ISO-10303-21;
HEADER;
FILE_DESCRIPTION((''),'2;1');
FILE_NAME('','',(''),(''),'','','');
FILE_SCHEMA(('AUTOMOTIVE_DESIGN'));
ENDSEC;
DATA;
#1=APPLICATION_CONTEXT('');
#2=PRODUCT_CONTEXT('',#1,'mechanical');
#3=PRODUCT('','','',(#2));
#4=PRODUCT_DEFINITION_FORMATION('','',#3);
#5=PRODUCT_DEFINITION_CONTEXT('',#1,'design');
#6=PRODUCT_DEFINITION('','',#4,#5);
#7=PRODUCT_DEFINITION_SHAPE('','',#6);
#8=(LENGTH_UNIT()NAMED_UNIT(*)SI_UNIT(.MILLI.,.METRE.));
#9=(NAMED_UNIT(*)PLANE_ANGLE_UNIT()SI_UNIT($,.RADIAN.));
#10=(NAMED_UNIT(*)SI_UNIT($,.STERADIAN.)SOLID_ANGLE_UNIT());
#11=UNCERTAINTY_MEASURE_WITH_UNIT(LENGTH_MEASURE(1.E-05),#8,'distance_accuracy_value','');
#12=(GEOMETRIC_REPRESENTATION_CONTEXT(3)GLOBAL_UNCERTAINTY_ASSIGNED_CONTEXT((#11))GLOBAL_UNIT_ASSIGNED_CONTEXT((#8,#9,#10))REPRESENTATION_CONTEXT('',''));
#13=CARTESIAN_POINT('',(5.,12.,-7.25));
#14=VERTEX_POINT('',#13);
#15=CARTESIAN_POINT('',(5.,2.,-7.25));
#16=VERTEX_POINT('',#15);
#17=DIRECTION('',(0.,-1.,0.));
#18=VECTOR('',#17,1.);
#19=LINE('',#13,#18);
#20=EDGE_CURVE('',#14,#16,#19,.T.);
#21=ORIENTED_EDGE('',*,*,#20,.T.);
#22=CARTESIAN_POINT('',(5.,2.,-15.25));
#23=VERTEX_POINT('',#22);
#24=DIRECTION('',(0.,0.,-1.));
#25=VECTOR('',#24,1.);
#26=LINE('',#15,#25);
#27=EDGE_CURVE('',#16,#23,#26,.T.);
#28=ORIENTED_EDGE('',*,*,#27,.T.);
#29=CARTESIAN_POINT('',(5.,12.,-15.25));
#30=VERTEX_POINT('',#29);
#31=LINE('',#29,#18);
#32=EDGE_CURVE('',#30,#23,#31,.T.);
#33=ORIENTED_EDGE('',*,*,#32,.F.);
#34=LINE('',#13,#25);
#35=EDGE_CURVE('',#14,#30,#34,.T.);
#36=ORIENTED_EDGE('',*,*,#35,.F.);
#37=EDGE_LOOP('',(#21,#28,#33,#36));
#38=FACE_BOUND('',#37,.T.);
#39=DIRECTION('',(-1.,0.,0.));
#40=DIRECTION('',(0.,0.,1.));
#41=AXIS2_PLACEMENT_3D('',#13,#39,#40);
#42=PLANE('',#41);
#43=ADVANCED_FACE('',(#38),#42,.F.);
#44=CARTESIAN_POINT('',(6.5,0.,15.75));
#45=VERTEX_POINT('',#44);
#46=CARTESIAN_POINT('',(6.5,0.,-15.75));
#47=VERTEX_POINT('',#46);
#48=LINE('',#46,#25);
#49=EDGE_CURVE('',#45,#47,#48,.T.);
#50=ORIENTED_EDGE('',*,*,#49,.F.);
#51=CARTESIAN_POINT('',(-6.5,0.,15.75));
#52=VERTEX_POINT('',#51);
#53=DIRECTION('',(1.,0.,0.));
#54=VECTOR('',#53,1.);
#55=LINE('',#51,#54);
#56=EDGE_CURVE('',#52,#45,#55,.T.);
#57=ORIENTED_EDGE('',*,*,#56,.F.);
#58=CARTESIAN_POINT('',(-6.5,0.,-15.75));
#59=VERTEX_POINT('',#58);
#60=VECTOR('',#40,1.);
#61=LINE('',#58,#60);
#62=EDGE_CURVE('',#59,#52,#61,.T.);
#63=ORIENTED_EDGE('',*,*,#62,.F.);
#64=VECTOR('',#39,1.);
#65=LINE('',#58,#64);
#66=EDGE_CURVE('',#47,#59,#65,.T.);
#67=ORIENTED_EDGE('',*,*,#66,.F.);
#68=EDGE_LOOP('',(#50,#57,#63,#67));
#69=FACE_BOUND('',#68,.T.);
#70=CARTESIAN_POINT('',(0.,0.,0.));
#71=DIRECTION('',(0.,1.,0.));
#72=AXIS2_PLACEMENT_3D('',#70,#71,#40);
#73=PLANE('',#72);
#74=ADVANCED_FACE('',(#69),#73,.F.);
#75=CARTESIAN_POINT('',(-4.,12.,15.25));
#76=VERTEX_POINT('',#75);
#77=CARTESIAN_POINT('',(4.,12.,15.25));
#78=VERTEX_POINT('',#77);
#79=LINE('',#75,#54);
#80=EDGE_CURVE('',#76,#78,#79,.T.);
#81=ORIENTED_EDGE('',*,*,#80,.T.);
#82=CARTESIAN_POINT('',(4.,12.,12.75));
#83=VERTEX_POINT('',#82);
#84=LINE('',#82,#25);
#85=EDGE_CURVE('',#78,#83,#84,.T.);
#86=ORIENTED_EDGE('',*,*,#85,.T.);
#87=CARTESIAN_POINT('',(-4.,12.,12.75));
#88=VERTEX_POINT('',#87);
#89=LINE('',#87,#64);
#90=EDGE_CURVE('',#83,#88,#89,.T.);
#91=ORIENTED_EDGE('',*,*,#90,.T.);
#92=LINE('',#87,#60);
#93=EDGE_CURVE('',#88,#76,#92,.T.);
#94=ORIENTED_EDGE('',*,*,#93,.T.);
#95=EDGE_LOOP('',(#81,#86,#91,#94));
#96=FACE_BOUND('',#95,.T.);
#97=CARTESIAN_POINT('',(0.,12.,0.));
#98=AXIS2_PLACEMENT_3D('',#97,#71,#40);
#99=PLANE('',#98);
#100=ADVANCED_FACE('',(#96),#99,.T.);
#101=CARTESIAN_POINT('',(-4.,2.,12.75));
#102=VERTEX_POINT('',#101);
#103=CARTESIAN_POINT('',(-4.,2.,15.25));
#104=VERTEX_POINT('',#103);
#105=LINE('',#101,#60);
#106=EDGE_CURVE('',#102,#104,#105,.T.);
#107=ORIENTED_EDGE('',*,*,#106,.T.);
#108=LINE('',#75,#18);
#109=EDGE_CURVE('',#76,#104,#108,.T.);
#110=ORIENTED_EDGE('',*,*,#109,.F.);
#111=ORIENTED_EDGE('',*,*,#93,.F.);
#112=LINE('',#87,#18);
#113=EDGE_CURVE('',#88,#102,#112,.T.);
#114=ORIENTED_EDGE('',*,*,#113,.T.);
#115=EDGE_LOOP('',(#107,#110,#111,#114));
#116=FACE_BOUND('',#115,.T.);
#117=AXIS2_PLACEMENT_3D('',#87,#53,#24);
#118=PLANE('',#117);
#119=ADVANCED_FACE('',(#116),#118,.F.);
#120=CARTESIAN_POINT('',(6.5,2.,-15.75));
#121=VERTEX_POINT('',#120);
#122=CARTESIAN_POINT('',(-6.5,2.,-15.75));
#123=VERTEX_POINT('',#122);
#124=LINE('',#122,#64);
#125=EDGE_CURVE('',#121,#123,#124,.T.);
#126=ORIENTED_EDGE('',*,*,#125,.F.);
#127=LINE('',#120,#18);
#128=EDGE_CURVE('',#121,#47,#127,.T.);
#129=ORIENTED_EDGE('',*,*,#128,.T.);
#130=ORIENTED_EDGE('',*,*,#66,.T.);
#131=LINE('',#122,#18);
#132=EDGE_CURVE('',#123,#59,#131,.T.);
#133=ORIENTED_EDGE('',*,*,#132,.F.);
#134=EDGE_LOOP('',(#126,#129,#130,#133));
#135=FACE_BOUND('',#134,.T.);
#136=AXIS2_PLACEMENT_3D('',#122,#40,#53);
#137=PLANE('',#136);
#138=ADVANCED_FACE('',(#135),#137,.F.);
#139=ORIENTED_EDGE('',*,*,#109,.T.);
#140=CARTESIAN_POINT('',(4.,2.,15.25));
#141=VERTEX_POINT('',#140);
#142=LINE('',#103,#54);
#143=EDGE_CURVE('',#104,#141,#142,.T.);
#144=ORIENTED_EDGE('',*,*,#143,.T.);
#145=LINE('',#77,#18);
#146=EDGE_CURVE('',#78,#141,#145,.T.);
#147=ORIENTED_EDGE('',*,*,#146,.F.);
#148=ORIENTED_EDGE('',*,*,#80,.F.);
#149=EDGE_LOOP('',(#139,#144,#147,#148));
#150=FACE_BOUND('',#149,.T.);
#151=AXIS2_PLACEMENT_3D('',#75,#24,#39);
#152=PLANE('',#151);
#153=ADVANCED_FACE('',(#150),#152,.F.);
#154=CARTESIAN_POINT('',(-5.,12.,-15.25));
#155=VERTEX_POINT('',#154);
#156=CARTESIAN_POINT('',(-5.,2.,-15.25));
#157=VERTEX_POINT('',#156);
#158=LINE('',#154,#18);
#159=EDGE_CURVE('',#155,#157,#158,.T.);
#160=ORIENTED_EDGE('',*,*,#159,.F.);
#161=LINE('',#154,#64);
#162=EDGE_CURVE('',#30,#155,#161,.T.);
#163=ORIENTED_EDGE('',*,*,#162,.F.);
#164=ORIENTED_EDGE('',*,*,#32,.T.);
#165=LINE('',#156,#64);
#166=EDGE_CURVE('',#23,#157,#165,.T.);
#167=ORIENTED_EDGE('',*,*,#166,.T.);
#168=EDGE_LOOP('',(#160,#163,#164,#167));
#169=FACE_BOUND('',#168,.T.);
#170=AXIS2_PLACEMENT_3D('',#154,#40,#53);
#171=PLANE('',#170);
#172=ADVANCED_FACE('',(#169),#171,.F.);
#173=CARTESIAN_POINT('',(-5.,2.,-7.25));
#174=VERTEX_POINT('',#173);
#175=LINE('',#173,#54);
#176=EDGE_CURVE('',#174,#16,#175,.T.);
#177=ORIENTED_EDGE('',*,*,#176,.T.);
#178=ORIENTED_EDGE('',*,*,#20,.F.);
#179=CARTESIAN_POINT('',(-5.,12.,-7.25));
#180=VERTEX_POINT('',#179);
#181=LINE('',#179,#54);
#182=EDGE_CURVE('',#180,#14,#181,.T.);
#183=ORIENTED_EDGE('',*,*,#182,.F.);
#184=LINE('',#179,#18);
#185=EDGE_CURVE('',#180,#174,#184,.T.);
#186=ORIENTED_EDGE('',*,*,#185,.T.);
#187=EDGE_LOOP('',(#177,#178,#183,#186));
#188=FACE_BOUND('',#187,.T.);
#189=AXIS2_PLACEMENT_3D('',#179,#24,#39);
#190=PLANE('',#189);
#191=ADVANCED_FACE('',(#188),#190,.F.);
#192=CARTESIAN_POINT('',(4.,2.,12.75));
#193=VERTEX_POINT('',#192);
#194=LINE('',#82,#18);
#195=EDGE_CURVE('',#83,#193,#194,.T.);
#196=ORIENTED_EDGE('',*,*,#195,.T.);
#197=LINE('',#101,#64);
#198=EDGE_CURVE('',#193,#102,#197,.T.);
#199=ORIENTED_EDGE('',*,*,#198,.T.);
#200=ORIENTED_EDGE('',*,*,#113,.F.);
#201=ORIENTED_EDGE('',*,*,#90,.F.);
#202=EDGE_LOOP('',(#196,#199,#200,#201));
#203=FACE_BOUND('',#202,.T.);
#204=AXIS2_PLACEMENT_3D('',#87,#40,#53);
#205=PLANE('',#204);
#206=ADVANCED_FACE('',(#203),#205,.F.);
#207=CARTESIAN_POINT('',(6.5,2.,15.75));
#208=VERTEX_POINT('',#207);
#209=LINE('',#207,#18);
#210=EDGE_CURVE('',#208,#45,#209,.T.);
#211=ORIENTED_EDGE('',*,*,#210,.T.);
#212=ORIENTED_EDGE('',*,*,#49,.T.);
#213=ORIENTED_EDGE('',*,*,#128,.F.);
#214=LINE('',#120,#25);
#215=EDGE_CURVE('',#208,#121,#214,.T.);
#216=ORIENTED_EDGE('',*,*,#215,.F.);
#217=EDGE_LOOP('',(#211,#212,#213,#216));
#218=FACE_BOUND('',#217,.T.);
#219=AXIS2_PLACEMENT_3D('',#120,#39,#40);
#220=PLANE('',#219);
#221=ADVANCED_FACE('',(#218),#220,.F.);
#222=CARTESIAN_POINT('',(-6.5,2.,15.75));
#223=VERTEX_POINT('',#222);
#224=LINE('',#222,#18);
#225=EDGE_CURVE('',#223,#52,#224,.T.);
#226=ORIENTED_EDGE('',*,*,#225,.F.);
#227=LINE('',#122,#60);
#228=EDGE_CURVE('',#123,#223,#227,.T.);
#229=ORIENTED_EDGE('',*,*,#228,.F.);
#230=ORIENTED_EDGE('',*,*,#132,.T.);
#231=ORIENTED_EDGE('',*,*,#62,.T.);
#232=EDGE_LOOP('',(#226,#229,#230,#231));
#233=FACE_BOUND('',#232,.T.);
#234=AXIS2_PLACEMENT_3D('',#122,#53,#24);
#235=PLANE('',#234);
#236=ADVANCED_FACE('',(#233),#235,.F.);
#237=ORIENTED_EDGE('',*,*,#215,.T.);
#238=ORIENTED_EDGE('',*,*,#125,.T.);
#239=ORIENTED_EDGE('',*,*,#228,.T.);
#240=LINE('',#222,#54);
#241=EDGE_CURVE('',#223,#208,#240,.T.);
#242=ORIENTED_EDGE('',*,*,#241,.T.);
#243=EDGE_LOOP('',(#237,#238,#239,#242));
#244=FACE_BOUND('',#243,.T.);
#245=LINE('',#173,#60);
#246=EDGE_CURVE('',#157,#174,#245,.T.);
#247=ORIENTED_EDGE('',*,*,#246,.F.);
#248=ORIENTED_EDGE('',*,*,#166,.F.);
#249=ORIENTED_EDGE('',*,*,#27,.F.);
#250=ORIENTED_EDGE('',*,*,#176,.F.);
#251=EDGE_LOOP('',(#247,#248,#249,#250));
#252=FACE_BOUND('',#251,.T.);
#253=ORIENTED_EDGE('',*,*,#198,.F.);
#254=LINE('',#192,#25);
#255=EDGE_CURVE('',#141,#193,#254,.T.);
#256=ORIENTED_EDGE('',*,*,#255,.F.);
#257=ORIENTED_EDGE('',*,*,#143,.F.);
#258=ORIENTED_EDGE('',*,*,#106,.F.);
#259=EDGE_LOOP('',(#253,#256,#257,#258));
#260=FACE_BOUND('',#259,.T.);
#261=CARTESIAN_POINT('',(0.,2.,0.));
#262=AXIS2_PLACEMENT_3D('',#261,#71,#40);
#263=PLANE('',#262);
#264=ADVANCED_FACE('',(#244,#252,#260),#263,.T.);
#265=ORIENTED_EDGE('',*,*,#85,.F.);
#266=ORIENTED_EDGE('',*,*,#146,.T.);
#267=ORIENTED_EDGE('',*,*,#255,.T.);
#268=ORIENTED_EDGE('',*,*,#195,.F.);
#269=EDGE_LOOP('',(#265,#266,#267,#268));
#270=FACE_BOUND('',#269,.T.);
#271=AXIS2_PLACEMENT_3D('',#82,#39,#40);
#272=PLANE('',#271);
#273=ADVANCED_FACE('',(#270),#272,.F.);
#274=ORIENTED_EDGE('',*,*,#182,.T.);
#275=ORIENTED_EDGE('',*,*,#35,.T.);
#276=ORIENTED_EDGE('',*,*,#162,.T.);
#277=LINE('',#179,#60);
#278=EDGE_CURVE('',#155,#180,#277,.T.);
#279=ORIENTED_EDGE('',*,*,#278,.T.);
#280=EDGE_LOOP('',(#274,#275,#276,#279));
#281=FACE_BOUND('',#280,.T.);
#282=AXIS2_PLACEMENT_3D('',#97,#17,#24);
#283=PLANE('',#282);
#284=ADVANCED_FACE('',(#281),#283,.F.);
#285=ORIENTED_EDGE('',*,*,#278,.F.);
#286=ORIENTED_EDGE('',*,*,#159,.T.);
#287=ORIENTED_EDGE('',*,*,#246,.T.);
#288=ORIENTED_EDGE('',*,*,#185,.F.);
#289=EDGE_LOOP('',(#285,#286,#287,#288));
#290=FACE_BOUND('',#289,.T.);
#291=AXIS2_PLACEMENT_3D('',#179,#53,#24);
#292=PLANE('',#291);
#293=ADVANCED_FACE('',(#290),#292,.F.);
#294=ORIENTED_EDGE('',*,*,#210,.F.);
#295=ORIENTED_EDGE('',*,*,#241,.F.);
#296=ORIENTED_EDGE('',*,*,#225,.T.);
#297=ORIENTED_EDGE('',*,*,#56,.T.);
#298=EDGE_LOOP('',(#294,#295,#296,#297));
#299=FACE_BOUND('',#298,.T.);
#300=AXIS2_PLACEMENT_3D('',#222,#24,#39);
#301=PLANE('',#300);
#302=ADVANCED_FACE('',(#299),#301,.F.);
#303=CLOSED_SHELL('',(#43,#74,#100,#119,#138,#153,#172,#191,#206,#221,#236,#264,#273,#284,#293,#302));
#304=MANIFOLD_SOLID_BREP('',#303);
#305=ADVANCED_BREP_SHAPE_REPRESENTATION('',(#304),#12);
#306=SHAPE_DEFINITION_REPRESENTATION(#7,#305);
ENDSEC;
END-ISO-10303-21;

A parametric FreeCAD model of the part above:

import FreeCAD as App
import Part
import Sketcher
from FreeCAD import Vector
Q = App.Units.Quantity


def add_polygon(sketch, points):
    """Adds a closed chain of lines whose ends are joined by coincident constraints."""
    first, n = sketch.GeometryCount, len(points)
    for a, b in zip(points, points[1:] + points[:1]):
        sketch.addGeometry(Part.LineSegment(App.Vector(*a, 0), App.Vector(*b, 0)), False)
    for i in range(n):
        sketch.addConstraint(Sketcher.Constraint("Coincident", first + i, 2, first + (i + 1) % n, 1))

doc = App.newDocument("Part")
params = doc.addObject("Spreadsheet::Sheet", "Params")
for row, (alias, value) in enumerate([
    ("sketch1_width", "13 mm"),
    ("sketch1_height", "31.5 mm"),
    ("pad1_length", "2 mm"),
    ("sketch2_width", "10 mm"),
    ("sketch2_width2", "8 mm"),
    ("sketch2_height", "2.5 mm"),
    ("pad2_length", "10 mm"),
], start=1):
    params.set(f"A{row}", alias)
    params.set(f"B{row}", "=" + value)
    params.setAlias(f"B{row}", alias)

body = doc.addObject("PartDesign::Body", "Body")

sketch1 = doc.addObject("Sketcher::SketchObject", "Sketch")
body.addObject(sketch1)
sketch1.AttachmentSupport = (doc.XZ_Plane, [""])
sketch1.MapMode = "FlatFace"
add_polygon(sketch1, [(-6.5, -15.75), (-6.5, 15.75), (6.5, 15.75), (6.5, -15.75)])
sketch1.addConstraint([
    Sketcher.Constraint("Vertical", 0),
    Sketcher.Constraint("Horizontal", 1),
    Sketcher.Constraint("Vertical", 2),
    Sketcher.Constraint("Horizontal", 3),
    Sketcher.Constraint("Symmetric", 0, 2, 2, 2, -1, 1),
    Sketcher.Constraint("DistanceX", 1, 1, 1, 2, Q("13 mm")),
    Sketcher.Constraint("DistanceY", 0, 1, 0, 2, Q("31.5 mm")),
])
sketch1.setExpression("Constraints[9]", "Params.sketch1_width")
sketch1.setExpression("Constraints[10]", "Params.sketch1_height")
pad1 = doc.addObject("PartDesign::Pad", "Pad")
body.addObject(pad1)
pad1.Profile = sketch1
pad1.setExpression("Length", "Params.pad1_length")
pad1.Reversed = True

sketch2 = doc.addObject("Sketcher::SketchObject", "Sketch001")
body.addObject(sketch2)
sketch2.AttachmentSupport = (doc.XZ_Plane, [""])
sketch2.MapMode = "FlatFace"
sketch2.AttachmentOffset = App.Placement(Vector(0, 0, -2), App.Rotation())
add_polygon(sketch2, [(-5, -15.25), (-5, -7.25), (5, -7.25), (5, -15.25)])
add_polygon(sketch2, [(-4, 12.75), (-4, 15.25), (4, 15.25), (4, 12.75)])
sketch2.addConstraint([
    Sketcher.Constraint("Vertical", 0),
    Sketcher.Constraint("Horizontal", 1),
    Sketcher.Constraint("Vertical", 2),
    Sketcher.Constraint("Horizontal", 3),
    Sketcher.Constraint("Vertical", 4),
    Sketcher.Constraint("Horizontal", 5),
    Sketcher.Constraint("Vertical", 6),
    Sketcher.Constraint("Horizontal", 7),
    Sketcher.Constraint("Equal", 7, 0),
    Sketcher.Constraint("DistanceX", 1, 1, 1, 2, Q("10 mm")),
    Sketcher.Constraint("DistanceX", 5, 1, 5, 2, Q("8 mm")),
    Sketcher.Constraint("DistanceY", 4, 1, 4, 2, Q("2.5 mm")),
    Sketcher.Constraint("DistanceX", 0, 2, -1, 1, Q("5 mm")),
    Sketcher.Constraint("DistanceX", 4, 2, -1, 1, Q("4 mm")),
    Sketcher.Constraint("DistanceY", 1, 2, 6, 2, Q("20 mm")),
    Sketcher.Constraint("DistanceY", 0, 2, -1, 1, Q("7.25 mm")),
])
sketch2.setExpression("Constraints[17]", "Params.sketch2_width")
sketch2.setExpression("Constraints[18]", "Params.sketch2_width2")
sketch2.setExpression("Constraints[19]", "Params.sketch2_height")
pad2 = doc.addObject("PartDesign::Pad", "Pad001")
body.addObject(pad2)
pad2.Profile = sketch2
pad2.setExpression("Length", "Params.pad2_length")
pad2.Reversed = True

doc.recompute()
